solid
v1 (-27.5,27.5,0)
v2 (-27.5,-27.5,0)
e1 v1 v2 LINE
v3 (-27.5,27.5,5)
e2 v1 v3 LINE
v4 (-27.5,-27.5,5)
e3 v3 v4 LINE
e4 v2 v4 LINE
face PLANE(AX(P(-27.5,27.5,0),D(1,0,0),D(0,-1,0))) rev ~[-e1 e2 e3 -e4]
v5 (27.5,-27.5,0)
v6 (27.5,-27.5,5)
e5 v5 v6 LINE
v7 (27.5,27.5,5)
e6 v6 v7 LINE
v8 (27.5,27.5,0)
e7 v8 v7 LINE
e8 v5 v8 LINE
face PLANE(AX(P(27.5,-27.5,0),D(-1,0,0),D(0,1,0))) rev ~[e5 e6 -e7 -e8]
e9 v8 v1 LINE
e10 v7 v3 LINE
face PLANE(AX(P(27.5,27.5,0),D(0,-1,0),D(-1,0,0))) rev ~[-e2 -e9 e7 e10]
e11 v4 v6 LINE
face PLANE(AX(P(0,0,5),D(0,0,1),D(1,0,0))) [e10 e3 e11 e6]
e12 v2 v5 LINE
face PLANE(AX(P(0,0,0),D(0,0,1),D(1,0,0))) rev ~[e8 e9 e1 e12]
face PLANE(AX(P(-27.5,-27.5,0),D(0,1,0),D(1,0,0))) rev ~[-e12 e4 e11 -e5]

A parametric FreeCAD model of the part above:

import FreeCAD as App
import Part
import Sketcher
Q = App.Units.Quantity


def add_polygon(sketch, points):
    """Adds a closed chain of lines whose ends are joined by coincident constraints."""
    first, n = sketch.GeometryCount, len(points)
    for a, b in zip(points, points[1:] + points[:1]):
        sketch.addGeometry(Part.LineSegment(App.Vector(*a, 0), App.Vector(*b, 0)), False)
    for i in range(n):
        sketch.addConstraint(Sketcher.Constraint("Coincident", first + i, 2, first + (i + 1) % n, 1))

doc = App.newDocument("Part")
body = doc.addObject("PartDesign::Body", "Body")

sketch1 = body.newObject("Sketcher::SketchObject", "Sketch")
sketch1.AttachmentSupport = (doc.getObject("XY_Plane"), [""])
sketch1.MapMode = "FlatFace"
add_polygon(sketch1, [(-27.5, 27.5), (-27.5, -27.5), (27.5, -27.5), (27.5, 27.5)])
sketch1.addConstraint([
    Sketcher.Constraint("Vertical", 0),
    Sketcher.Constraint("Horizontal", 1),
    Sketcher.Constraint("Vertical", 2),
    Sketcher.Constraint("Horizontal", 3),
    Sketcher.Constraint("Symmetric", 0, 2, 2, 2, -1, 1),
    Sketcher.Constraint("Equal", 3, 0),
    Sketcher.Constraint("DistanceX", 1, 1, 1, 2, Q("55 mm")),
])
pad1 = body.newObject("PartDesign::Pad", "Pad")
pad1.Profile = sketch1
pad1.Length = 5

doc.recompute()
